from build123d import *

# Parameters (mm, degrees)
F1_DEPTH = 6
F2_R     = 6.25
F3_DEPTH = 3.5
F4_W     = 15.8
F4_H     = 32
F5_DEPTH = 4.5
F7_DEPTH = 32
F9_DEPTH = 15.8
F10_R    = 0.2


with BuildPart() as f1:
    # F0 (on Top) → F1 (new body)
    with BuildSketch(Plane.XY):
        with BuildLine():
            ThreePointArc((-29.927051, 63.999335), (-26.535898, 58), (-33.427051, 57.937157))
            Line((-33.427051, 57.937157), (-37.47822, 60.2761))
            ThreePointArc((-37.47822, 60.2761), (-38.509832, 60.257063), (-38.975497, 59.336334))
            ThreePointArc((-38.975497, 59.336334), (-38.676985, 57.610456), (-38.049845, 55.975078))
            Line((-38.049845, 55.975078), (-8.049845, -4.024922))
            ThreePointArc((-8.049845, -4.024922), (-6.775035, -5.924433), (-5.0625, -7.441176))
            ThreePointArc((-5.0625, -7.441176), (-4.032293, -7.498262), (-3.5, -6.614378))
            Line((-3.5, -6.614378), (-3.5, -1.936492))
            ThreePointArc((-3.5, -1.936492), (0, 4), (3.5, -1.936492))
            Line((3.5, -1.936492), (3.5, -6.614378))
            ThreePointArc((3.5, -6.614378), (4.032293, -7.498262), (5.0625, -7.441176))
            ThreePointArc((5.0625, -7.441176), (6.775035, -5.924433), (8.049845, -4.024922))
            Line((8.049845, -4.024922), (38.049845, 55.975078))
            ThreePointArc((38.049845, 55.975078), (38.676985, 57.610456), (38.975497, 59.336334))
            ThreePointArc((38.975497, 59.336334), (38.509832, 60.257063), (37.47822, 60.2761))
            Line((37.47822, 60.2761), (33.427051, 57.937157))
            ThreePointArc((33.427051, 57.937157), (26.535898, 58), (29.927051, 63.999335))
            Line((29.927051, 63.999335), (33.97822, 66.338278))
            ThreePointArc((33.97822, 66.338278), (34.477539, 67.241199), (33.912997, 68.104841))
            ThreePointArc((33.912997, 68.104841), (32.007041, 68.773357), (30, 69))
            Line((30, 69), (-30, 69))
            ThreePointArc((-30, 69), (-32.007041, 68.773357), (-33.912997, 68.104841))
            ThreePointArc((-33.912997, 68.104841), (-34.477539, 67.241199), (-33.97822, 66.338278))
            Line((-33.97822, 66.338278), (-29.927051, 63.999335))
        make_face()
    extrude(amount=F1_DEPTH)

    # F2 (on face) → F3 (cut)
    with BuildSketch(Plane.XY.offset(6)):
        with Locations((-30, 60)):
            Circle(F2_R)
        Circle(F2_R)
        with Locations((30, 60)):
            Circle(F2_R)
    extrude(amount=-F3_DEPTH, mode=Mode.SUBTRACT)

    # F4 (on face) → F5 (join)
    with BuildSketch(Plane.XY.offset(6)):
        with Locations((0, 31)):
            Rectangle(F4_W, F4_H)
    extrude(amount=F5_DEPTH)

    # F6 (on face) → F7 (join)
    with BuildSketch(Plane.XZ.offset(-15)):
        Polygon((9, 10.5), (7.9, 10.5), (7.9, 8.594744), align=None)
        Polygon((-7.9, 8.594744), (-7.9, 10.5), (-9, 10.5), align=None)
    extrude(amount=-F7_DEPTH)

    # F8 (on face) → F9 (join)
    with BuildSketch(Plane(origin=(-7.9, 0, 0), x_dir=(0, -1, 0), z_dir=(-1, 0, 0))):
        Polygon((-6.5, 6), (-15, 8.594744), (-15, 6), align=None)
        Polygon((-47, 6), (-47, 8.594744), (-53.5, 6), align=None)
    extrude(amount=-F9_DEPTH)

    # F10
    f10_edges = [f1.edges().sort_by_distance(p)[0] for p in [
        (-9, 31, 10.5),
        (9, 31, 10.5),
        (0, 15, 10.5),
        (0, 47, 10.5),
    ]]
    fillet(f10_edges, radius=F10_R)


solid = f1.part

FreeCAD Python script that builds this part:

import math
import FreeCAD as App
import Part
import Sketcher
Q = App.Units.Quantity


def edges_at(feature, points):
    """Names of the edges that pass closest to the given points."""
    edges = feature.Shape.Edges
    near = lambda p: min(range(len(edges)), key=lambda i: edges[i].distToShape(Part.Vertex(*p))[0])
    return sorted({f"Edge{near(p) + 1}" for p in points})

doc = App.newDocument("Part")
body = doc.addObject("PartDesign::Body", "Body")

# Sketch on XY plane
sketch1 = body.newObject("Sketcher::SketchObject", "Sketch")
sketch1.AttachmentSupport = (doc.getObject("XY_Plane"), [""])
sketch1.MapMode = "FlatFace"
sketch1.addGeometry([
    Part.ArcOfCircle(Part.Circle(App.Vector(-30, 60, 0), App.Vector(0, 0, 1), 4), math.radians(-148.955026), math.radians(88.955028)),  # 0
    Part.LineSegment(App.Vector(-33.427051, 57.937157, 0), App.Vector(-37.47822, 60.2761, 0)),  # 1
    Part.ArcOfCircle(Part.Circle(App.Vector(-37.97822, 59.410076, 0), App.Vector(0, 0, 1), 0.999999), math.radians(59.999953), math.radians(184.228926)),  # 2
    Part.ArcOfCircle(Part.Circle(App.Vector(-29.999969, 60.000008, 0), App.Vector(0, 0, 1), 9.000032), math.radians(-175.771095), math.radians(-153.434994)),  # 3
    Part.LineSegment(App.Vector(-38.049845, 55.975078, 0), App.Vector(-8.049845, -4.024922, 0)),  # 4
    Part.ArcOfCircle(Part.Circle(App.Vector(-0.000002, -0.000002, 0), App.Vector(0, 0, 1), 8.999998), math.radians(-153.434959), math.radians(-124.228864)),  # 5
    Part.ArcOfCircle(Part.Circle(App.Vector(-4.5, -6.614378, 0), App.Vector(0, 0, 1), 1), math.radians(-124.228842), math.radians(0.000017)),  # 6
    Part.LineSegment(App.Vector(-3.5, -6.614378, 0), App.Vector(-3.5, -1.936492, 0)),  # 7
    Part.ArcOfCircle(Part.Circle(App.Vector(0, 0, 0), App.Vector(0, 0, 1), 4), math.radians(-28.955027), math.radians(208.955027)),  # 8
    Part.LineSegment(App.Vector(3.5, -1.936492, 0), App.Vector(3.5, -6.614378, 0)),  # 9
    Part.ArcOfCircle(Part.Circle(App.Vector(4.5, -6.614378, 0), App.Vector(0, 0, 1), 1), math.radians(179.999983), math.radians(304.228842)),  # 10
    Part.ArcOfCircle(Part.Circle(App.Vector(0.000002, -0.000002, 0), App.Vector(0, 0, 1), 8.999998), math.radians(-55.771136), math.radians(-26.565041)),  # 11
    Part.LineSegment(App.Vector(8.049845, -4.024922, 0), App.Vector(38.049845, 55.975078, 0)),  # 12
    Part.ArcOfCircle(Part.Circle(App.Vector(29.999969, 60.000008, 0), App.Vector(0, 0, 1), 9.000032), math.radians(-26.565006), math.radians(-4.228905)),  # 13
    Part.ArcOfCircle(Part.Circle(App.Vector(37.97822, 59.410076, 0), App.Vector(0, 0, 1), 0.999999), math.radians(-4.228926), math.radians(120.000047)),  # 14
    Part.LineSegment(App.Vector(37.47822, 60.2761, 0), App.Vector(33.427051, 57.937157, 0)),  # 15
    Part.ArcOfCircle(Part.Circle(App.Vector(30, 60, 0), App.Vector(0, 0, 1), 4), math.radians(91.044972), math.radians(328.955026)),  # 16
    Part.LineSegment(App.Vector(29.927051, 63.999335, 0), App.Vector(33.97822, 66.338278, 0)),  # 17
    Part.ArcOfCircle(Part.Circle(App.Vector(33.47822, 67.204303, 0), App.Vector(0, 0, 1), 1), math.radians(-60.000004), math.radians(64.228901)),  # 18
    Part.ArcOfCircle(Part.Circle(App.Vector(30.000004, 60.000022, 0), App.Vector(0, 0, 1), 8.999978), math.radians(64.228829), math.radians(90.000026)),  # 19
    Part.LineSegment(App.Vector(30, 69, 0), App.Vector(-30, 69, 0)),  # 20
    Part.ArcOfCircle(Part.Circle(App.Vector(-30.000004, 60.000022, 0), App.Vector(0, 0, 1), 8.999978), math.radians(89.999974), math.radians(115.771171)),  # 21
    Part.ArcOfCircle(Part.Circle(App.Vector(-33.47822, 67.204303, 0), App.Vector(0, 0, 1), 1), math.radians(115.771099), math.radians(240.000004)),  # 22
    Part.LineSegment(App.Vector(-33.97822, 66.338278, 0), App.Vector(-29.927051, 63.999335, 0)),  # 23
], False)
sketch1.addConstraint([
    Sketcher.Constraint("Coincident", 0, 1, 1, 1),
    Sketcher.Constraint("Tangent", 1, 2, 2, 1),
    Sketcher.Constraint("Tangent", 2, 2, 3, 1),
    Sketcher.Constraint("Tangent", 3, 2, 4, 1),
    Sketcher.Constraint("Tangent", 4, 2, 5, 1),
    Sketcher.Constraint("Tangent", 5, 2, 6, 1),
    Sketcher.Constraint("Tangent", 6, 2, 7, 1),
    Sketcher.Constraint("Coincident", 7, 2, 8, 2),
    Sketcher.Constraint("Coincident", 8, 1, 9, 1),
    Sketcher.Constraint("Tangent", 9, 2, 10, 1),
    Sketcher.Constraint("Tangent", 10, 2, 11, 1),
    Sketcher.Constraint("Tangent", 11, 2, 12, 1),
    Sketcher.Constraint("Tangent", 12, 2, 13, 1),
    Sketcher.Constraint("Tangent", 13, 2, 14, 1),
    Sketcher.Constraint("Tangent", 14, 2, 15, 1),
    Sketcher.Constraint("Coincident", 15, 2, 16, 2),
    Sketcher.Constraint("Coincident", 16, 1, 17, 1),
    Sketcher.Constraint("Tangent", 17, 2, 18, 1),
    Sketcher.Constraint("Tangent", 18, 2, 19, 1),
    Sketcher.Constraint("Tangent", 19, 2, 20, 1),
    Sketcher.Constraint("Tangent", 20, 2, 21, 1),
    Sketcher.Constraint("Tangent", 21, 2, 22, 1),
    Sketcher.Constraint("Tangent", 22, 2, 23, 1),
    Sketcher.Constraint("Coincident", 23, 2, 0, 2),
    Sketcher.Constraint("Vertical", 7),
    Sketcher.Constraint("Vertical", 9),
    Sketcher.Constraint("Horizontal", 20),
    Sketcher.Constraint("Coincident", 5, 3, -1, 1),
    Sketcher.Constraint("Coincident", 8, 3, -1, 1),
    Sketcher.Constraint("Coincident", 11, 3, -1, 1),
    Sketcher.Constraint("Equal", 2, 6),
    Sketcher.Constraint("Equal", 0, 8),
    Sketcher.Constraint("Equal", 6, 10),
    Sketcher.Constraint("Equal", 5, 11),
    Sketcher.Constraint("Equal", 3, 13),
    Sketcher.Constraint("Equal", 10, 14),
    Sketcher.Constraint("Equal", 8, 16),
    Sketcher.Constraint("Equal", 14, 18),
    Sketcher.Constraint("Equal", 19, 21),
    Sketcher.Constraint("Equal", 18, 22),
    Sketcher.Constraint("Symmetric", 3, 3, 13, 3, -2),
    Sketcher.Constraint("Symmetric", 0, 3, 16, 3, -2),
    Sketcher.Constraint("Symmetric", 18, 3, 22, 3, -2),
    Sketcher.Constraint("Symmetric", 1, 2, 14, 2, -2),
    Sketcher.Constraint("Parallel", 15, 17),
    Sketcher.Constraint("Parallel", 1, 23),
    Sketcher.Constraint("Horizontal", 6, 3, 10, 3),
    Sketcher.Constraint("Vertical", 16, 3, 19, 2),
    Sketcher.Constraint("Equal", 15, 17),
    Sketcher.Constraint("Radius", 0, 4.0),
    Sketcher.Constraint("Radius", 2, 0.999999),
    Sketcher.Constraint("DistanceX", 20, 2, 20, 1, 60.0),
    Sketcher.Constraint("Angle", 1, Q("150.000005 deg")),
    Sketcher.Constraint("DistanceY", -1, 1, 0, 3, 60.0),
    Sketcher.Constraint("DistanceY", -1, 1, 19, 2, 69.0),
    Sketcher.Constraint("DistanceX", 6, 3, 10, 3, 9.0),
    Sketcher.Constraint("DistanceX", 18, 3, 14, 3, 4.5),
    Sketcher.Constraint("Radius", 3, 9.000032),
    Sketcher.Constraint("Radius", 19, 8.999978),
    Sketcher.Constraint("Radius", 5, 8.999998),
    Sketcher.Constraint("DistanceY", -1, 1, 1, 2, 60.2761),
    Sketcher.Constraint("Distance", 4, 67.082039),
])
pad1 = body.newObject("PartDesign::Pad", "Pad")
pad1.Profile = sketch1
pad1.Length = 6

# Sketch on XY plane
sketch2 = body.newObject("Sketcher::SketchObject", "Sketch001")
sketch2.AttachmentSupport = (doc.getObject("XY_Plane"), [""])
sketch2.MapMode = "FlatFace"
sketch2.AttachmentOffset = App.Placement(App.Vector(0, 0, 6), App.Rotation())
sketch2.addGeometry([
    Part.Circle(App.Vector(-30, 60, 0), App.Vector(0, 0, 1), 6.25),
    Part.Circle(App.Vector(0, 0, 0), App.Vector(0, 0, 1), 6.25),
    Part.Circle(App.Vector(30, 60, 0), App.Vector(0, 0, 1), 6.25),
], False)
sketch2.addConstraint([
    Sketcher.Constraint("Coincident", 1, 3, -1, 1),
    Sketcher.Constraint("Equal", 0, 1),
    Sketcher.Constraint("Equal", 1, 2),
    Sketcher.Constraint("Symmetric", 0, 3, 2, 3, -2),
    Sketcher.Constraint("Diameter", 0, 12.5),
    Sketcher.Constraint("DistanceX", 0, 3, -1, 1, 30.0),
    Sketcher.Constraint("DistanceY", -1, 1, 0, 3, 60.0),
])
pocket1 = body.newObject("PartDesign::Pocket", "Pocket")
pocket1.Profile = sketch2
pocket1.Length = 3.5

# Sketch on XY plane
sketch3 = body.newObject("Sketcher::SketchObject", "Sketch002")
sketch3.AttachmentSupport = (doc.getObject("XY_Plane"), [""])
sketch3.MapMode = "FlatFace"
sketch3.AttachmentOffset = App.Placement(App.Vector(0, 0, 6), App.Rotation())
sketch3.addGeometry([
    Part.LineSegment(App.Vector(-7.9, 47, 0), App.Vector(-7.9, 15, 0)),
    Part.LineSegment(App.Vector(-7.9, 15, 0), App.Vector(7.9, 15, 0)),
    Part.LineSegment(App.Vector(7.9, 15, 0), App.Vector(7.9, 47, 0)),
    Part.LineSegment(App.Vector(7.9, 47, 0), App.Vector(-7.9, 47, 0)),
], False)
sketch3.addConstraint([
    Sketcher.Constraint("Coincident", 0, 2, 1, 1),
    Sketcher.Constraint("Coincident", 1, 2, 2, 1),
    Sketcher.Constraint("Coincident", 2, 2, 3, 1),
    Sketcher.Constraint("Coincident", 3, 2, 0, 1),
    Sketcher.Constraint("Vertical", 0),
    Sketcher.Constraint("Horizontal", 1),
    Sketcher.Constraint("Vertical", 2),
    Sketcher.Constraint("Horizontal", 3),
    Sketcher.Constraint("DistanceY", 0, 2, 0, 1, 32.0),
    Sketcher.Constraint("DistanceX", 1, 1, 1, 2, 15.8),
    Sketcher.Constraint("DistanceY", -1, 1, 0, 2, 15.0),
    Sketcher.Constraint("DistanceX", 0, 2, -1, 1, 7.9),
])
pad2 = body.newObject("PartDesign::Pad", "Pad001")
pad2.Profile = sketch3
pad2.Length = 4.5

# Sketch on XZ plane
sketch4 = body.newObject("Sketcher::SketchObject", "Sketch003")
sketch4.AttachmentSupport = (doc.getObject("XZ_Plane"), [""])
sketch4.MapMode = "FlatFace"
sketch4.AttachmentOffset = App.Placement(App.Vector(0, 0, -15), App.Rotation())
sketch4.addGeometry([
    Part.LineSegment(App.Vector(9, 10.5, 0), App.Vector(7.9, 10.5, 0)),  # 0
    Part.LineSegment(App.Vector(7.9, 10.5, 0), App.Vector(7.9, 8.594744, 0)),  # 1
    Part.LineSegment(App.Vector(7.9, 8.594744, 0), App.Vector(9, 10.5, 0)),  # 2
    Part.LineSegment(App.Vector(-7.9, 8.594744, 0), App.Vector(-7.9, 10.5, 0)),  # 3
    Part.LineSegment(App.Vector(-7.9, 10.5, 0), App.Vector(-9, 10.5, 0)),  # 4
    Part.LineSegment(App.Vector(-9, 10.5, 0), App.Vector(-7.9, 8.594744, 0)),  # 5
], False)
sketch4.addConstraint([
    Sketcher.Constraint("Coincident", 0, 2, 1, 1),
    Sketcher.Constraint("Coincident", 1, 2, 2, 1),
    Sketcher.Constraint("Coincident", 2, 2, 0, 1),
    Sketcher.Constraint("Coincident", 3, 2, 4, 1),
    Sketcher.Constraint("Coincident", 4, 2, 5, 1),
    Sketcher.Constraint("Coincident", 5, 2, 3, 1),
    Sketcher.Constraint("Horizontal", 0),
    Sketcher.Constraint("Vertical", 1),
    Sketcher.Constraint("Vertical", 3),
    Sketcher.Constraint("Horizontal", 4),
    Sketcher.Constraint("Symmetric", 0, 2, 3, 2, -2),
    Sketcher.Constraint("Horizontal", 1, 2, 5, 2),
    Sketcher.Constraint("Equal", 0, 4),
    Sketcher.Constraint("Angle", 2, Q("60.000001 deg")),
    Sketcher.Constraint("DistanceX", 0, 2, 0, 1, 1.1),
    Sketcher.Constraint("DistanceX", -1, 1, 2, 2, 9.0),
    Sketcher.Constraint("DistanceY", -1, 1, 0, 2, 10.5),
])
pad3 = body.newObject("PartDesign::Pad", "Pad002")
pad3.Profile = sketch4
pad3.Length = 32
pad3.Reversed = True

# Sketch on YZ plane
sketch5 = body.newObject("Sketcher::SketchObject", "Sketch004")
sketch5.AttachmentSupport = (doc.getObject("YZ_Plane"), [""])
sketch5.MapMode = "FlatFace"
sketch5.AttachmentOffset = App.Placement(App.Vector(0, 0, -7.9), App.Rotation())
sketch5.addGeometry([
    Part.LineSegment(App.Vector(6.5, 6, 0), App.Vector(15, 8.594744, 0)),  # 0
    Part.LineSegment(App.Vector(15, 8.594744, 0), App.Vector(15, 6, 0)),  # 1
    Part.LineSegment(App.Vector(15, 6, 0), App.Vector(6.5, 6, 0)),  # 2
    Part.LineSegment(App.Vector(47, 6, 0), App.Vector(47, 8.594744, 0)),  # 3
    Part.LineSegment(App.Vector(47, 8.594744, 0), App.Vector(53.5, 6, 0)),  # 4
    Part.LineSegment(App.Vector(53.5, 6, 0), App.Vector(47, 6, 0)),  # 5
], False)
sketch5.addConstraint([
    Sketcher.Constraint("Coincident", 0, 2, 1, 1),
    Sketcher.Constraint("Coincident", 1, 2, 2, 1),
    Sketcher.Constraint("Coincident", 2, 2, 0, 1),
    Sketcher.Constraint("Coincident", 3, 2, 4, 1),
    Sketcher.Constraint("Coincident", 4, 2, 5, 1),
    Sketcher.Constraint("Coincident", 5, 2, 3, 1),
    Sketcher.Constraint("Vertical", 1),
    Sketcher.Constraint("Horizontal", 2),
    Sketcher.Constraint("Vertical", 3),
    Sketcher.Constraint("Horizontal", 5),
    Sketcher.Constraint("Horizontal", 0, 2, 3, 2),
    Sketcher.Constraint("Horizontal", 2, 2, 4, 2),
    Sketcher.Constraint("DistanceX", 2, 2, 2, 1, 8.5),
    Sketcher.Constraint("DistanceX", 5, 2, 5, 1, 6.5),
    Sketcher.Constraint("DistanceX", -1, 1, 0, 2, 15.0),
    Sketcher.Constraint("DistanceY", -1, 1, 1, 2, 6.0),
    Sketcher.Constraint("DistanceX", -1, 1, 3, 2, 47.0),
    Sketcher.Constraint("Distance", 0, 8.887221),
])
pad4 = body.newObject("PartDesign::Pad", "Pad003")
pad4.Profile = sketch5
pad4.Length = 15.8
doc.recompute()

fillet = body.newObject("PartDesign::Fillet", "Fillet")
fillet.Base = (pad4, edges_at(pad4, [
    (-9, 31, 10.5),
    (9, 31, 10.5),
    (0, 15, 10.5),
    (0, 47, 10.5),
]))
fillet.Radius = 0.2

doc.recompute()
